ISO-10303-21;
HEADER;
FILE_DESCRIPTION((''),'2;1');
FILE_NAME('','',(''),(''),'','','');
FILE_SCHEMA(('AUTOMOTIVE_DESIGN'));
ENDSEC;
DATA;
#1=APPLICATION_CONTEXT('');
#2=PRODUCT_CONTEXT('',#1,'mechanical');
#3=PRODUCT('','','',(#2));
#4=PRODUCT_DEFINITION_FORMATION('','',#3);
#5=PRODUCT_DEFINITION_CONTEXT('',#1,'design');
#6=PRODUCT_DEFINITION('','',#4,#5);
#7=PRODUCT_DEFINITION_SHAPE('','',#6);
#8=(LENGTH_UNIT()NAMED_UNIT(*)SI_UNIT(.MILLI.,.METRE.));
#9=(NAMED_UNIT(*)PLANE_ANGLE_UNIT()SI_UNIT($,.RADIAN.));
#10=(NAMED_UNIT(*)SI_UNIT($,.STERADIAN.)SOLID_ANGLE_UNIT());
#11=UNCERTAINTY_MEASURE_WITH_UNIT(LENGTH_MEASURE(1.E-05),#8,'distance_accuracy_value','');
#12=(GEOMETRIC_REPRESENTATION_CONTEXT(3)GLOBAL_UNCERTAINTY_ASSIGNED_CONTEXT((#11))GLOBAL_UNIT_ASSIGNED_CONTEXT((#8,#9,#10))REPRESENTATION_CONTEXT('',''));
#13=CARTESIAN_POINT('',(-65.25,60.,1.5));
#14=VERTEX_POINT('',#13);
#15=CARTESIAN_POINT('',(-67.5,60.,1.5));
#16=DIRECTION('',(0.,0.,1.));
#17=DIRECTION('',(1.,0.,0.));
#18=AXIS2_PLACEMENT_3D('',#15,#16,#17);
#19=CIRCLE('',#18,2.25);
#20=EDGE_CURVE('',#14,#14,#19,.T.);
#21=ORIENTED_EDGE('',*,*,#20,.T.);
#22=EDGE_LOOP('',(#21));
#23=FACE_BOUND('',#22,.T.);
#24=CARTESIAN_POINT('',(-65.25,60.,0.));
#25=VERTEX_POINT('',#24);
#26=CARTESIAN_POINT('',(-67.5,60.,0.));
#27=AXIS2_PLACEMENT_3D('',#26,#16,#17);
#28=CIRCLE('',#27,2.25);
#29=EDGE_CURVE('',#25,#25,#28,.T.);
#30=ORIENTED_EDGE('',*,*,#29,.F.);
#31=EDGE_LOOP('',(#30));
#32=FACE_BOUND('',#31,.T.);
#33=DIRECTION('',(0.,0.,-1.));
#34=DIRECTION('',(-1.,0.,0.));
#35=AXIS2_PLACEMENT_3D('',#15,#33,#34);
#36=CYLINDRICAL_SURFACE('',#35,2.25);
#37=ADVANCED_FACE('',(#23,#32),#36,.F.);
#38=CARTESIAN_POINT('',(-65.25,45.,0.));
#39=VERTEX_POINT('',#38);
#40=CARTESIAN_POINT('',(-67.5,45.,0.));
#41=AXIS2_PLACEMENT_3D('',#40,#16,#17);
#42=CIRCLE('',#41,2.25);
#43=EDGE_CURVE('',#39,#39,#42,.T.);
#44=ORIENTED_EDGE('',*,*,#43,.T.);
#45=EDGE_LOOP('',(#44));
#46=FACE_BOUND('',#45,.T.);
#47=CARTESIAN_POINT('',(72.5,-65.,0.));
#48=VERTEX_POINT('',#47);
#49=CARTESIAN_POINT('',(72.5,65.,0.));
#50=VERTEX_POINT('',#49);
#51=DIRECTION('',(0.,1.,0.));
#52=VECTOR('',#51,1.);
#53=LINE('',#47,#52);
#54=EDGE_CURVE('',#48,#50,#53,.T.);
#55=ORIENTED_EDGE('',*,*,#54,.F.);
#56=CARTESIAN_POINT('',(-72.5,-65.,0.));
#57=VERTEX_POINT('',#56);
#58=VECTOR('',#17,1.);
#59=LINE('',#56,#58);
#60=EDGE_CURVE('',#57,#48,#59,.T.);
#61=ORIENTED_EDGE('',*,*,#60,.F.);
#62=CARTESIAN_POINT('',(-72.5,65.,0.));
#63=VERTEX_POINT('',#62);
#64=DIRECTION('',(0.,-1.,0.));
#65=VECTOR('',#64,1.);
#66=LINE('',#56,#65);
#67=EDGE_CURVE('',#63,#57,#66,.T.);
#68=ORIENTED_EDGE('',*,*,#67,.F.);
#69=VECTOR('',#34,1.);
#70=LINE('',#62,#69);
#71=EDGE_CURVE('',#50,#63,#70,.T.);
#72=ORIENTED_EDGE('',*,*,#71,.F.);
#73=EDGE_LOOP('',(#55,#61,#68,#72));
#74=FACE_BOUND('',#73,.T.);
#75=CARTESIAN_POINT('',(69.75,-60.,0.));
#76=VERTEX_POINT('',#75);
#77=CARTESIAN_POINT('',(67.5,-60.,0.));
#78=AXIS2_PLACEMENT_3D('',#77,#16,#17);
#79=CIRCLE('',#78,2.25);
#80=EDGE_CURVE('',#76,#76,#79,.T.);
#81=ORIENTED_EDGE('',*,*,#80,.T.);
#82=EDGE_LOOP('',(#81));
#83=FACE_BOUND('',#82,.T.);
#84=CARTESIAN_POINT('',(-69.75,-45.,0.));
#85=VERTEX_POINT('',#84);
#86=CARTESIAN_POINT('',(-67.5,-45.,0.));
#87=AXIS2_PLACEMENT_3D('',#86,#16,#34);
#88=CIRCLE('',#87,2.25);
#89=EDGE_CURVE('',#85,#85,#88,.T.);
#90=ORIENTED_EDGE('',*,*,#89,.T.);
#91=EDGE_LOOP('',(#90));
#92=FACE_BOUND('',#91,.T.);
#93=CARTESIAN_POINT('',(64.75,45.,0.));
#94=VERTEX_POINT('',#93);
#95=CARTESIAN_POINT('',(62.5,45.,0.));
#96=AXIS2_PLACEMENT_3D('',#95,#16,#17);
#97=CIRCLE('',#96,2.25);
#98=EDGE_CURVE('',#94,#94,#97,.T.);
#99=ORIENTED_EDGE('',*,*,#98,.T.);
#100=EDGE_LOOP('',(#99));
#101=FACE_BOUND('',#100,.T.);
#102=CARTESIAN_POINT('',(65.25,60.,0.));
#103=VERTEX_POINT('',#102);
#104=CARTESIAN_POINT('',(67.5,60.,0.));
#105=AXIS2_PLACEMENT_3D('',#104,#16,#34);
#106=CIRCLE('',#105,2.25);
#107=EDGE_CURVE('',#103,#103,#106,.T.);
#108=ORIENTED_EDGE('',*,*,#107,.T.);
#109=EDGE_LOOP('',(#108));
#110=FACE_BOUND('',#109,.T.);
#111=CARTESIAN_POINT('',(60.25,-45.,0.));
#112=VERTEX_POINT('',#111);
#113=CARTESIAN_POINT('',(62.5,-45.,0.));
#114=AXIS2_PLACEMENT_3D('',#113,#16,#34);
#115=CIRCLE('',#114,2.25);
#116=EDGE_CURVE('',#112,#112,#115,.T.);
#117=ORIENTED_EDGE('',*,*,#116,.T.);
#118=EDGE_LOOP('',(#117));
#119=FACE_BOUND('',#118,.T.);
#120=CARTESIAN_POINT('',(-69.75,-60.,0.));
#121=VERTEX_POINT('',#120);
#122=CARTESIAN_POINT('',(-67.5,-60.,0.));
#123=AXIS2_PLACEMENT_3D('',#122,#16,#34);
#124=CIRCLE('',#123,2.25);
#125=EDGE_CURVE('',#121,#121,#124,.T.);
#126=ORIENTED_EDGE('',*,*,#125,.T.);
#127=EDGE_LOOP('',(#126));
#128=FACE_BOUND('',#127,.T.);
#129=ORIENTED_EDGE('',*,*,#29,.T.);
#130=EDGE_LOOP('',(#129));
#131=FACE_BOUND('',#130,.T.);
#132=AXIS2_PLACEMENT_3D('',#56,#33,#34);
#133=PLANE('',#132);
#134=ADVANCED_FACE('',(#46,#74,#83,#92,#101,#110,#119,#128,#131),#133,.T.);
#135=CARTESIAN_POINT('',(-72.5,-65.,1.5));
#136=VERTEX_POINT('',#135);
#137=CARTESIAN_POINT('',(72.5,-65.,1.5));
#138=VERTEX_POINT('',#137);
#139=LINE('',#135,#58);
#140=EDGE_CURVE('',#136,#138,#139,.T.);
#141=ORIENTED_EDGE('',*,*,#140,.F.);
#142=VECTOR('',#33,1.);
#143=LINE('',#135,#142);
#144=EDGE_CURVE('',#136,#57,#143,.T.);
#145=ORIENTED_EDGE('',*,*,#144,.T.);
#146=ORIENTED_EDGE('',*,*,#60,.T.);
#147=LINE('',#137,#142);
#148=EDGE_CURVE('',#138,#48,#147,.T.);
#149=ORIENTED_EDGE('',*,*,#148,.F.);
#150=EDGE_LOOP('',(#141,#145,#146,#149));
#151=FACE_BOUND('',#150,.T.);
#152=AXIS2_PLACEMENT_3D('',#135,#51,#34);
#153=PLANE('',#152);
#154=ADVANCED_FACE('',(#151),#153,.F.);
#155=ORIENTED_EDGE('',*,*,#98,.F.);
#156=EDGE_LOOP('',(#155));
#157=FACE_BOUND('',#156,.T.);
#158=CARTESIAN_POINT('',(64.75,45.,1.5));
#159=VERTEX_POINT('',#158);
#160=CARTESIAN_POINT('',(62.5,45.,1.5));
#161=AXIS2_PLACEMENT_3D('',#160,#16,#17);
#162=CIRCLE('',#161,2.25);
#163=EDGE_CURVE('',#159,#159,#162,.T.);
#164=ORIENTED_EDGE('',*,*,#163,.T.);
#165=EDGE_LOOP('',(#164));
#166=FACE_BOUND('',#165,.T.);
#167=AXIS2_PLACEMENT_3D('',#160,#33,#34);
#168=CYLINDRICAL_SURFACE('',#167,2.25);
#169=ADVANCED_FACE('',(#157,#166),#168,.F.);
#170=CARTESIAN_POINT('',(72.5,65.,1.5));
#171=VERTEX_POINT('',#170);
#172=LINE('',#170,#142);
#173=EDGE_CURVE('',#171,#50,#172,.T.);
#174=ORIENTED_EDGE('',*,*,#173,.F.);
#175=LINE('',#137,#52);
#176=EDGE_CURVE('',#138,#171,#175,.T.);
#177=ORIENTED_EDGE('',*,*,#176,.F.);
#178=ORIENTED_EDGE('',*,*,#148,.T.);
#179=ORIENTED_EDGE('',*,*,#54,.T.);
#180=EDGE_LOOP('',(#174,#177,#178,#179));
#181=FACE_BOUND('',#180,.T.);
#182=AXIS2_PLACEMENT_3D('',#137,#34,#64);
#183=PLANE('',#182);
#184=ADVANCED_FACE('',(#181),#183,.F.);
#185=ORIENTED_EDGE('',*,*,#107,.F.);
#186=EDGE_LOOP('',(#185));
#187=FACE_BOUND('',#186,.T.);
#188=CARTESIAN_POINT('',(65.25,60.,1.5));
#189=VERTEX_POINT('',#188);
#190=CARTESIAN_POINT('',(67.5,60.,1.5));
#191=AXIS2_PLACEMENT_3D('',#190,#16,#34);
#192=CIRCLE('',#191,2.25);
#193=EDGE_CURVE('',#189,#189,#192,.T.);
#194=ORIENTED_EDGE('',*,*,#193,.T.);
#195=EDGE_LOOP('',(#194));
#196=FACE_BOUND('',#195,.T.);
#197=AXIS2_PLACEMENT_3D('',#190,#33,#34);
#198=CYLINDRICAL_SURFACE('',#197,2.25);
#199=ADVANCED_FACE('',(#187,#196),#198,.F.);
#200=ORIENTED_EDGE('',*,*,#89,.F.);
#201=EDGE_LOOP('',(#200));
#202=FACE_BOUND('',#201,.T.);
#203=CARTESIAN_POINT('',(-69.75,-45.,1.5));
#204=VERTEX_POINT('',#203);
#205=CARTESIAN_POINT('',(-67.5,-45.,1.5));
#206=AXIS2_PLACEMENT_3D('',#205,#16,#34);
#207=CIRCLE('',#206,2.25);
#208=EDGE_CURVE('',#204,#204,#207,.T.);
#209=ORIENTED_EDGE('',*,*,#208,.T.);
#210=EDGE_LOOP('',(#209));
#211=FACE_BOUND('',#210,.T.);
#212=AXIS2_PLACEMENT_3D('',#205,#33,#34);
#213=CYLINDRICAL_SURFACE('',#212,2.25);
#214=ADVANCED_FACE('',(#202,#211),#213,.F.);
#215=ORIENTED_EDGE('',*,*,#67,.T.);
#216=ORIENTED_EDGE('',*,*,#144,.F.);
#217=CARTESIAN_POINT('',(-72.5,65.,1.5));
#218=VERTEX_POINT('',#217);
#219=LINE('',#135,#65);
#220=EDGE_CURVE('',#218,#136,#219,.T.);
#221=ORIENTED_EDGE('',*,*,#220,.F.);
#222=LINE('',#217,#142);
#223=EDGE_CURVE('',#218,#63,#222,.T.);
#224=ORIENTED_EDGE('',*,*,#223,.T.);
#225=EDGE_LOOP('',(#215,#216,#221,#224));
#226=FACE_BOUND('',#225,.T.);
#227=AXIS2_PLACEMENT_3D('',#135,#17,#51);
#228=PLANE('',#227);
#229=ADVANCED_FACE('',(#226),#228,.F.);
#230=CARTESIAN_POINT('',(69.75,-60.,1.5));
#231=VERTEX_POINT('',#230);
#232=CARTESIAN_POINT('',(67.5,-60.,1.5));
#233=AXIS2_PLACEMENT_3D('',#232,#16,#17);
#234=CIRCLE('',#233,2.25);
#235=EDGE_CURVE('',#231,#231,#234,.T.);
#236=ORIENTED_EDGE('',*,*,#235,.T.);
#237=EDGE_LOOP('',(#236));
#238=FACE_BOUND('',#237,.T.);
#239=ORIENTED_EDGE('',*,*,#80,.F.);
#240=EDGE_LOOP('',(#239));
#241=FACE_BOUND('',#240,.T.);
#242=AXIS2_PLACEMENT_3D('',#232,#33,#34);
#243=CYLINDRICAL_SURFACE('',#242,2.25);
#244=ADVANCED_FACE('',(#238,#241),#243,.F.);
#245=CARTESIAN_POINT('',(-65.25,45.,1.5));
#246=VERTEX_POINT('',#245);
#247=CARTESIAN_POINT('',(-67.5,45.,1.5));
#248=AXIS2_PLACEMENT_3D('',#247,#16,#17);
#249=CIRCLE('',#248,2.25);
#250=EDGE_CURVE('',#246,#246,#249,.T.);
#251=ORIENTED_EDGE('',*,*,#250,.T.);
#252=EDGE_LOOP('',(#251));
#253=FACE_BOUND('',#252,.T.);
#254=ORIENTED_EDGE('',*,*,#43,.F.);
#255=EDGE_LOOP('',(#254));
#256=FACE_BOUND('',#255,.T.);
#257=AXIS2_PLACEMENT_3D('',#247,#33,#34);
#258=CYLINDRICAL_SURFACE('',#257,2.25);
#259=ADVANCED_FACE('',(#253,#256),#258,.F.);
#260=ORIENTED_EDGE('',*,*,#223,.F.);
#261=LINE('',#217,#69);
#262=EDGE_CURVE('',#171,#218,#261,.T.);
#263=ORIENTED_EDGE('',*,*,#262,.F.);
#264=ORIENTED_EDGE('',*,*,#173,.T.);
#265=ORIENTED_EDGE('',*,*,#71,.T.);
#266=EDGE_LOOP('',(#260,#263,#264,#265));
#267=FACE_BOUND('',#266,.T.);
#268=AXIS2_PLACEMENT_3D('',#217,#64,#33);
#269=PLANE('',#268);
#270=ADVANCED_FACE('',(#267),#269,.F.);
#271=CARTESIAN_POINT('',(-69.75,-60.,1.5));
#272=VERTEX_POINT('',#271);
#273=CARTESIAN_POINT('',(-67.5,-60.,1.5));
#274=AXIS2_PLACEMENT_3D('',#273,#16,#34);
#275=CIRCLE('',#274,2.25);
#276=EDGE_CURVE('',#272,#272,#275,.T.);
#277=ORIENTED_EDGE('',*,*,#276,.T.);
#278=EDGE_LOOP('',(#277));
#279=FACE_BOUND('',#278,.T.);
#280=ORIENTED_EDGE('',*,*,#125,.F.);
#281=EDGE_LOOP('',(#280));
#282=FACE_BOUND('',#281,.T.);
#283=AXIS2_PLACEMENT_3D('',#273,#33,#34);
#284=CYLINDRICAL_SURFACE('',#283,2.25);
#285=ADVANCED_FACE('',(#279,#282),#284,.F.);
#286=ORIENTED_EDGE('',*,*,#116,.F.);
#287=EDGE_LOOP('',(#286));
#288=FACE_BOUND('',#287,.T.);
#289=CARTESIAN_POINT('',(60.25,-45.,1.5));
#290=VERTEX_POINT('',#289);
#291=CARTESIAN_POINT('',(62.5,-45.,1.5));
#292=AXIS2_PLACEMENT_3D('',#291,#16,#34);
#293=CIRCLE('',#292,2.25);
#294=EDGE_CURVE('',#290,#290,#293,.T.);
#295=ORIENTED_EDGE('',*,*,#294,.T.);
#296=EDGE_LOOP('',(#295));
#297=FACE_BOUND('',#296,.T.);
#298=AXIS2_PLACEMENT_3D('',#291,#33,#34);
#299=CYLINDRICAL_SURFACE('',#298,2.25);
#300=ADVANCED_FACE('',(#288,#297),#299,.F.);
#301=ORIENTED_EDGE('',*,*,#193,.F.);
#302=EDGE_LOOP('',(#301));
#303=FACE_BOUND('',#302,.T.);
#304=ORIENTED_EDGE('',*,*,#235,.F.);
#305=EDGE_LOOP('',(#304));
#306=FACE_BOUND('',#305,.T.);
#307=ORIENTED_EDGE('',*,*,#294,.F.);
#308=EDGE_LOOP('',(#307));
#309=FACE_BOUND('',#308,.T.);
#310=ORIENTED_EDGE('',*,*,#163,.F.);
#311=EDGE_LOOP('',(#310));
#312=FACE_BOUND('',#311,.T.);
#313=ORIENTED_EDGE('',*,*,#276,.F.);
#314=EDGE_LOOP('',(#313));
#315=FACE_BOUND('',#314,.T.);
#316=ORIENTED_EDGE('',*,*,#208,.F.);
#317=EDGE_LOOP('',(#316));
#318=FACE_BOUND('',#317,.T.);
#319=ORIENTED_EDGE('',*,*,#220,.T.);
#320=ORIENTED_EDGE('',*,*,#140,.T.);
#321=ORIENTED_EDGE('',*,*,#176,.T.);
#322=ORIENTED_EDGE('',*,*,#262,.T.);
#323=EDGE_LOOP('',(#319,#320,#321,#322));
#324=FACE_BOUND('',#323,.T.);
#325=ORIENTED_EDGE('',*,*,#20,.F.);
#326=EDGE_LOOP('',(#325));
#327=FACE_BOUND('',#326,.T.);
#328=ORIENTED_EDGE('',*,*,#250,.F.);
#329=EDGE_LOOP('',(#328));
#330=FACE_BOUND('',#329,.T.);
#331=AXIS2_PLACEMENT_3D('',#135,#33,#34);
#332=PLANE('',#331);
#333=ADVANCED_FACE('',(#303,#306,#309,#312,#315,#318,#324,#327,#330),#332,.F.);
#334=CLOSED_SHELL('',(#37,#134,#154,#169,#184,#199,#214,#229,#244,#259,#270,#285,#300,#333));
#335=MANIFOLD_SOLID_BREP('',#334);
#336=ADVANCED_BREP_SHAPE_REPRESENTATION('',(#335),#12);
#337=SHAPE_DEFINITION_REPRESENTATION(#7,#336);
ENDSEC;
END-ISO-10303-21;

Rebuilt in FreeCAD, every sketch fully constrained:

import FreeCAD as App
import Part
import Sketcher
from FreeCAD import Vector
Q = App.Units.Quantity


def add_polygon(sketch, points):
    """Adds a closed chain of lines whose ends are joined by coincident constraints."""
    first, n = sketch.GeometryCount, len(points)
    for a, b in zip(points, points[1:] + points[:1]):
        sketch.addGeometry(Part.LineSegment(App.Vector(*a, 0), App.Vector(*b, 0)), False)
    for i in range(n):
        sketch.addConstraint(Sketcher.Constraint("Coincident", first + i, 2, first + (i + 1) % n, 1))

doc = App.newDocument("Part")
body = doc.addObject("PartDesign::Body", "Body")

# Sketch on XY plane
sketch1 = body.newObject("Sketcher::SketchObject", "Sketch")
sketch1.AttachmentSupport = (doc.getObject("XY_Plane"), [""])
sketch1.MapMode = "FlatFace"
add_polygon(sketch1, [(-72.5, 65), (-72.5, -65), (72.5, -65), (72.5, 65)])  # lines 0-3
sketch1.addGeometry(Part.Circle(Vector(-67.5, -60, 0), Vector(0, 0, 1), 2.2), False)  # 4
sketch1.addGeometry(Part.Circle(Vector(-67.5, -45, 0), Vector(0, 0, 1), 2.2), False)  # 5
sketch1.addGeometry(Part.Circle(Vector(67.5, -60, 0), Vector(0, 0, 1), 2.2), False)  # 6
sketch1.addGeometry(Part.Circle(Vector(62.5, -45, 0), Vector(0, 0, 1), 2.2), False)  # 7
sketch1.addGeometry(Part.Circle(Vector(-67.5, 45, 0), Vector(0, 0, 1), 2.2), False)  # 8
sketch1.addGeometry(Part.Circle(Vector(-67.5, 60, 0), Vector(0, 0, 1), 2.2), False)  # 9
sketch1.addGeometry(Part.Circle(Vector(62.5, 45, 0), Vector(0, 0, 1), 2.2), False)  # 10
sketch1.addGeometry(Part.Circle(Vector(67.5, 60, 0), Vector(0, 0, 1), 2.2), False)  # 11
sketch1.addConstraint([
    Sketcher.Constraint("Vertical", 0),
    Sketcher.Constraint("Horizontal", 1),
    Sketcher.Constraint("Vertical", 2),
    Sketcher.Constraint("Horizontal", 3),
    Sketcher.Constraint("Equal", 4, 5),
    Sketcher.Constraint("Equal", 5, 6),
    Sketcher.Constraint("Equal", 6, 7),
    Sketcher.Constraint("Equal", 7, 8),
    Sketcher.Constraint("Equal", 8, 9),
    Sketcher.Constraint("Equal", 9, 10),
    Sketcher.Constraint("Equal", 10, 11),
    Sketcher.Constraint("Symmetric", 6, 3, 9, 3, -1, 1),
    Sketcher.Constraint("Symmetric", 4, 3, 11, 3, -1, 1),
    Sketcher.Constraint("Symmetric", 0, 2, 2, 2, -1, 1),
    Sketcher.Constraint("Symmetric", 4, 3, 6, 3, -2),
    Sketcher.Constraint("Symmetric", 5, 3, 8, 3, -1),
    Sketcher.Constraint("Symmetric", 7, 3, 10, 3, -1),
    Sketcher.Constraint("Horizontal", 5, 3, 7, 3),
    Sketcher.Constraint("Vertical", 4, 3, 5, 3),
    Sketcher.Constraint("Diameter", 4, Q("4.5 mm")),
    Sketcher.Constraint("DistanceX", 1, 1, 1, 2, Q("145 mm")),
    Sketcher.Constraint("DistanceY", 0, 2, 0, 1, Q("130 mm")),
    Sketcher.Constraint("DistanceY", 4, 3, -1, 1, Q("60 mm")),
    Sketcher.Constraint("DistanceY", 5, 3, -1, 1, Q("45 mm")),
    Sketcher.Constraint("DistanceX", 4, 3, 6, 3, Q("135 mm")),
    Sketcher.Constraint("DistanceX", 7, 3, 6, 3, Q("5 mm")),
])
pad1 = body.newObject("PartDesign::Pad", "Pad")
pad1.Profile = sketch1
pad1.Length = 1.5

doc.recompute()
